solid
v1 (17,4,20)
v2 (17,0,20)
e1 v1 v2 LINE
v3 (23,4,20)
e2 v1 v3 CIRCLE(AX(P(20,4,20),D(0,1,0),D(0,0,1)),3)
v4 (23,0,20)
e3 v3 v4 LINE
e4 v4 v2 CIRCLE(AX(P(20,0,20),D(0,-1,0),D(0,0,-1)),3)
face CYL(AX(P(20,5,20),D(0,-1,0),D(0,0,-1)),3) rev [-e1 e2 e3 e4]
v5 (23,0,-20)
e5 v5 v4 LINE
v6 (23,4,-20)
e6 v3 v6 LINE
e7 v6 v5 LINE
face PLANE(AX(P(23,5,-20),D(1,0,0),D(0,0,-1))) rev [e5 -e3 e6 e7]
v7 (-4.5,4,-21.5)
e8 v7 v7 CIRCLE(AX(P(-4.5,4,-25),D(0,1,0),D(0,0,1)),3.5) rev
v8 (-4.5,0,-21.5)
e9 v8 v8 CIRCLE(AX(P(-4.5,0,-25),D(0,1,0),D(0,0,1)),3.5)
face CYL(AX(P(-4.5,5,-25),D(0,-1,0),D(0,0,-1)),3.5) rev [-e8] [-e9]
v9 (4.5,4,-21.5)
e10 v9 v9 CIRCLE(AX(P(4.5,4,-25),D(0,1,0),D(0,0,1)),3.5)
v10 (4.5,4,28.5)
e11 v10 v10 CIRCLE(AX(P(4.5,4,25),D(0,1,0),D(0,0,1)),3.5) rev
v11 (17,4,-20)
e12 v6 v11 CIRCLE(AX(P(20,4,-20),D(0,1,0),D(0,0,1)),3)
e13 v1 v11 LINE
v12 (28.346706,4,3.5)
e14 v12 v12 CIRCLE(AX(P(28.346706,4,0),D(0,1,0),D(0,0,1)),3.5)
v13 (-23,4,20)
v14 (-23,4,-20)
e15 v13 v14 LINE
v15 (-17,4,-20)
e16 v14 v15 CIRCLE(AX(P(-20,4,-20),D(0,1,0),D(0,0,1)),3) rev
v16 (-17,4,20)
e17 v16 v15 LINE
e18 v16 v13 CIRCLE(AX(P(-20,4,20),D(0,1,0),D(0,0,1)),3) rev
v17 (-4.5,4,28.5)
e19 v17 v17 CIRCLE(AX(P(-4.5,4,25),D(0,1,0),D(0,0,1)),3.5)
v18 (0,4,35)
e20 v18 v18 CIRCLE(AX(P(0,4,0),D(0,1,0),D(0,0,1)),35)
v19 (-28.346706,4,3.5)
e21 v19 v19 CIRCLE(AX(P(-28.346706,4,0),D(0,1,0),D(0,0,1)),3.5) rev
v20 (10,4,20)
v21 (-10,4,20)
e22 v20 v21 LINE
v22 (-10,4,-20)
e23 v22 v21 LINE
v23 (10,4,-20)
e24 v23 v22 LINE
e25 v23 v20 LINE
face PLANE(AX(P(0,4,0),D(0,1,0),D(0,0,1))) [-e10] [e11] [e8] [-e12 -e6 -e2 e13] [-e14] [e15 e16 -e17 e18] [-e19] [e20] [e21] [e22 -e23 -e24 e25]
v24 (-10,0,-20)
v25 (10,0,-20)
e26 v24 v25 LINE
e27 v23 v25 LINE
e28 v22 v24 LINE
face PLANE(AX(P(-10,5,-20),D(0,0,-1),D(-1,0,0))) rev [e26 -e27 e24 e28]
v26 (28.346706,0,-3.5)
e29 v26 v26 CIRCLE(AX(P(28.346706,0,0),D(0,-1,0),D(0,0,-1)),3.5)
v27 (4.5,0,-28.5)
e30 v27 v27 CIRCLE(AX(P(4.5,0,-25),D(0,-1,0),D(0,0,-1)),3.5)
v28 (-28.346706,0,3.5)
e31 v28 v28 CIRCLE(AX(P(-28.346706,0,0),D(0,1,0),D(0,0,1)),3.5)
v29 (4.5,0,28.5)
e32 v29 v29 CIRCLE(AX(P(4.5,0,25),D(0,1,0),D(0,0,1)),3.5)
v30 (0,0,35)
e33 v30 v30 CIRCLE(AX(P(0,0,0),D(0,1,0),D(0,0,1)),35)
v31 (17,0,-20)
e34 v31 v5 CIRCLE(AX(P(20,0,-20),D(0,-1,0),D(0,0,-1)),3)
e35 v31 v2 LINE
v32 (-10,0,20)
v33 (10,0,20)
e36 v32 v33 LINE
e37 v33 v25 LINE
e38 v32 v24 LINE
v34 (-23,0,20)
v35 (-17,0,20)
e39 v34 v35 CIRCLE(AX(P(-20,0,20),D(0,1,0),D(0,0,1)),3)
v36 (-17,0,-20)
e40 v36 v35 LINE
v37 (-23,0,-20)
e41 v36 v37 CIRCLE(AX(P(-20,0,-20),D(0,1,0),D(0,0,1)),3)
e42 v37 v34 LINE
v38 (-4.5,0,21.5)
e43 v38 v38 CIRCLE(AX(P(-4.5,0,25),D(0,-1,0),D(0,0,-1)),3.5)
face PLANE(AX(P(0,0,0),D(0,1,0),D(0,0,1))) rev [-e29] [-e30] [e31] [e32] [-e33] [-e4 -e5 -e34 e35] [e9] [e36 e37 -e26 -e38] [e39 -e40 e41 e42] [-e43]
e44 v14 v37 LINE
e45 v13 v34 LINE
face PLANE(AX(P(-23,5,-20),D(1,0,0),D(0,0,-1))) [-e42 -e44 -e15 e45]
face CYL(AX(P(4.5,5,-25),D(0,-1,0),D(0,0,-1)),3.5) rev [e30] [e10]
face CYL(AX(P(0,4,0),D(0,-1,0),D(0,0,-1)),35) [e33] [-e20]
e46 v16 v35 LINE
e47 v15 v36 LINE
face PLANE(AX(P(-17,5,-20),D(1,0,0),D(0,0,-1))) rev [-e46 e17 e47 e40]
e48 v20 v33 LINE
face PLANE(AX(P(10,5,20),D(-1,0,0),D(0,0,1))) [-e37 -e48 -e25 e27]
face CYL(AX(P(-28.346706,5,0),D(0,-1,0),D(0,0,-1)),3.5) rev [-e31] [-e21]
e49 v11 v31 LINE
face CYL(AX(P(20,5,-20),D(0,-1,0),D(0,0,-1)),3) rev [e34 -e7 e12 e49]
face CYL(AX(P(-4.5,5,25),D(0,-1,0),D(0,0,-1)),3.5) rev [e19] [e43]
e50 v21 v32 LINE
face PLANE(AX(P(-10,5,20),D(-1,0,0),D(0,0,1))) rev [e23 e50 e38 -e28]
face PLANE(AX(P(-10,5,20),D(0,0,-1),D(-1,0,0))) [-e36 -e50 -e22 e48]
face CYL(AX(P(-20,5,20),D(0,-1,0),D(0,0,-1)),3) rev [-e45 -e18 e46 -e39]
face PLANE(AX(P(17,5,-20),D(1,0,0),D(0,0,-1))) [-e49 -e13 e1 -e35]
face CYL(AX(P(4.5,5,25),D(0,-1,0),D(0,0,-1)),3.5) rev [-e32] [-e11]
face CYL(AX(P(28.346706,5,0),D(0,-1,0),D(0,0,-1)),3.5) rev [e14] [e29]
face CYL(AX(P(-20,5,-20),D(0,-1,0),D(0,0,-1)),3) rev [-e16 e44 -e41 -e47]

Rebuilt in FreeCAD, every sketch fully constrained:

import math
import FreeCAD as App
import Part
import Sketcher

V = App.Vector


def add_polygon(sketch, points):
    """Adds a closed chain of lines whose ends are joined by coincident constraints."""
    first, n = sketch.GeometryCount, len(points)
    for a, b in zip(points, points[1:] + points[:1]):
        sketch.addGeometry(Part.LineSegment(App.Vector(*a, 0), App.Vector(*b, 0)), False)
    for i in range(n):
        sketch.addConstraint(Sketcher.Constraint("Coincident", first + i, 2, first + (i + 1) % n, 1))

doc = App.newDocument("Part")
body = doc.addObject("PartDesign::Body", "Body")

# Sketch on XZ plane
sketch1 = body.newObject("Sketcher::SketchObject", "Sketch")
sketch1.AttachmentSupport = (doc.getObject("XZ_Plane"), [""])
sketch1.MapMode = "FlatFace"
sketch1.addGeometry(Part.Circle(V(0, 0, 0), V(0, 0, 1), 35), False)
sketch1.addConstraint([
    Sketcher.Constraint("Coincident", 0, 3, -1, 1),
    Sketcher.Constraint("Diameter", 0, 70.0),
])
pad1 = body.newObject("PartDesign::Pad", "Pad")
pad1.Profile = sketch1
pad1.Length = 4
pad1.Reversed = True

# Sketch on XZ plane
sketch2 = body.newObject("Sketcher::SketchObject", "Sketch001")
sketch2.AttachmentSupport = (doc.getObject("XZ_Plane"), [""])
sketch2.MapMode = "FlatFace"
sketch2.addGeometry(Part.Circle(V(-4.5, -25, 0), V(0, 0, 1), 3.5), False)  # 0
sketch2.addGeometry(Part.Circle(V(4.5, -25, 0), V(0, 0, 1), 3.5), False)  # 1
sketch2.addGeometry(Part.Circle(V(4.5, 25, 0), V(0, 0, 1), 3.5), False)  # 2
sketch2.addGeometry(Part.Circle(V(-4.5, 25, 0), V(0, 0, 1), 3.5), False)  # 3
sketch2.addGeometry(Part.Circle(V(-28.346706, 0, 0), V(0, 0, 1), 3.5), False)  # 4
sketch2.addGeometry(Part.Circle(V(28.346706, 0, 0), V(0, 0, 1), 3.5), False)  # 5
add_polygon(sketch2, [(-10, -20), (-10, 20), (10, 20), (10, -20)])  # lines 6-9
sketch2.addGeometry(Part.LineSegment(V(-17, 20, 0), V(-17, -20, 0)), False)  # 10
sketch2.addGeometry(Part.ArcOfCircle(Part.Circle(V(-20, -20, 0), V(0, 0, 1), 3), math.radians(180), math.radians(360)), False)  # 11
sketch2.addGeometry(Part.LineSegment(V(-23, -20, 0), V(-23, 20, 0)), False)  # 12
sketch2.addGeometry(Part.ArcOfCircle(Part.Circle(V(-20, 20, 0), V(0, 0, 1), 3), math.radians(0), math.radians(180)), False)  # 13
sketch2.addGeometry(Part.LineSegment(V(17, -20, 0), V(17, 20, 0)), False)  # 14
sketch2.addGeometry(Part.ArcOfCircle(Part.Circle(V(20, 20, 0), V(0, 0, 1), 3), math.radians(0), math.radians(180)), False)  # 15
sketch2.addGeometry(Part.LineSegment(V(23, 20, 0), V(23, -20, 0)), False)  # 16
sketch2.addGeometry(Part.ArcOfCircle(Part.Circle(V(20, -20, 0), V(0, 0, 1), 3), math.radians(180), math.radians(360)), False)  # 17
sketch2.addConstraint([
    Sketcher.Constraint("Tangent", 10, 2, 11, 2),
    Sketcher.Constraint("Tangent", 11, 1, 12, 1),
    Sketcher.Constraint("Tangent", 12, 2, 13, 2),
    Sketcher.Constraint("Tangent", 13, 1, 10, 1),
    Sketcher.Constraint("Tangent", 14, 2, 15, 2),
    Sketcher.Constraint("Tangent", 15, 1, 16, 1),
    Sketcher.Constraint("Tangent", 16, 2, 17, 2),
    Sketcher.Constraint("Tangent", 17, 1, 14, 1),
    Sketcher.Constraint("Vertical", 6),
    Sketcher.Constraint("Horizontal", 7),
    Sketcher.Constraint("Vertical", 8),
    Sketcher.Constraint("Horizontal", 9),
    Sketcher.Constraint("Vertical", 10),
    Sketcher.Constraint("Vertical", 12),
    Sketcher.Constraint("Vertical", 14),
    Sketcher.Constraint("Vertical", 16),
    Sketcher.Constraint("Equal", 0, 1),
    Sketcher.Constraint("Equal", 1, 2),
    Sketcher.Constraint("Equal", 2, 3),
    Sketcher.Constraint("Equal", 3, 4),
    Sketcher.Constraint("Equal", 4, 5),
    Sketcher.Constraint("Equal", 13, 15),
    Sketcher.Constraint("Symmetric", 0, 3, 2, 3, -1, 1),
    Sketcher.Constraint("Symmetric", 1, 3, 3, 3, -1, 1),
    Sketcher.Constraint("Symmetric", 4, 3, 5, 3, -1, 1),
    Sketcher.Constraint("Symmetric", 11, 3, 15, 3, -1, 1),
    Sketcher.Constraint("Symmetric", 6, 2, 8, 2, -1, 1),
    Sketcher.Constraint("Symmetric", 0, 3, 1, 3, -2),
    Sketcher.Constraint("PointOnObject", 4, 3, -1),
    Sketcher.Constraint("Horizontal", 13, 3, 15, 3),
    Sketcher.Constraint("Horizontal", 11, 3, 17, 3),
    Sketcher.Constraint("Horizontal", 15, 3, 6, 2),
    Sketcher.Constraint("Diameter", 0, 7.0),
    Sketcher.Constraint("Radius", 11, 3.0),
    Sketcher.Constraint("DistanceX", 7, 1, 7, 2, 20.0),
    Sketcher.Constraint("DistanceY", 6, 1, 6, 2, 40.0),
    Sketcher.Constraint("DistanceY", 0, 3, -1, 1, 25.0),
    Sketcher.Constraint("DistanceX", 11, 3, -1, 1, 20.0),
    Sketcher.Constraint("DistanceX", 0, 3, 1, 3, 9.0),
    Sketcher.Constraint("DistanceX", 4, 3, -1, 1, 28.346706),
])
pocket1 = body.newObject("PartDesign::Pocket", "Pocket")
pocket1.Profile = sketch2
pocket1.Length = 5

doc.recompute()
